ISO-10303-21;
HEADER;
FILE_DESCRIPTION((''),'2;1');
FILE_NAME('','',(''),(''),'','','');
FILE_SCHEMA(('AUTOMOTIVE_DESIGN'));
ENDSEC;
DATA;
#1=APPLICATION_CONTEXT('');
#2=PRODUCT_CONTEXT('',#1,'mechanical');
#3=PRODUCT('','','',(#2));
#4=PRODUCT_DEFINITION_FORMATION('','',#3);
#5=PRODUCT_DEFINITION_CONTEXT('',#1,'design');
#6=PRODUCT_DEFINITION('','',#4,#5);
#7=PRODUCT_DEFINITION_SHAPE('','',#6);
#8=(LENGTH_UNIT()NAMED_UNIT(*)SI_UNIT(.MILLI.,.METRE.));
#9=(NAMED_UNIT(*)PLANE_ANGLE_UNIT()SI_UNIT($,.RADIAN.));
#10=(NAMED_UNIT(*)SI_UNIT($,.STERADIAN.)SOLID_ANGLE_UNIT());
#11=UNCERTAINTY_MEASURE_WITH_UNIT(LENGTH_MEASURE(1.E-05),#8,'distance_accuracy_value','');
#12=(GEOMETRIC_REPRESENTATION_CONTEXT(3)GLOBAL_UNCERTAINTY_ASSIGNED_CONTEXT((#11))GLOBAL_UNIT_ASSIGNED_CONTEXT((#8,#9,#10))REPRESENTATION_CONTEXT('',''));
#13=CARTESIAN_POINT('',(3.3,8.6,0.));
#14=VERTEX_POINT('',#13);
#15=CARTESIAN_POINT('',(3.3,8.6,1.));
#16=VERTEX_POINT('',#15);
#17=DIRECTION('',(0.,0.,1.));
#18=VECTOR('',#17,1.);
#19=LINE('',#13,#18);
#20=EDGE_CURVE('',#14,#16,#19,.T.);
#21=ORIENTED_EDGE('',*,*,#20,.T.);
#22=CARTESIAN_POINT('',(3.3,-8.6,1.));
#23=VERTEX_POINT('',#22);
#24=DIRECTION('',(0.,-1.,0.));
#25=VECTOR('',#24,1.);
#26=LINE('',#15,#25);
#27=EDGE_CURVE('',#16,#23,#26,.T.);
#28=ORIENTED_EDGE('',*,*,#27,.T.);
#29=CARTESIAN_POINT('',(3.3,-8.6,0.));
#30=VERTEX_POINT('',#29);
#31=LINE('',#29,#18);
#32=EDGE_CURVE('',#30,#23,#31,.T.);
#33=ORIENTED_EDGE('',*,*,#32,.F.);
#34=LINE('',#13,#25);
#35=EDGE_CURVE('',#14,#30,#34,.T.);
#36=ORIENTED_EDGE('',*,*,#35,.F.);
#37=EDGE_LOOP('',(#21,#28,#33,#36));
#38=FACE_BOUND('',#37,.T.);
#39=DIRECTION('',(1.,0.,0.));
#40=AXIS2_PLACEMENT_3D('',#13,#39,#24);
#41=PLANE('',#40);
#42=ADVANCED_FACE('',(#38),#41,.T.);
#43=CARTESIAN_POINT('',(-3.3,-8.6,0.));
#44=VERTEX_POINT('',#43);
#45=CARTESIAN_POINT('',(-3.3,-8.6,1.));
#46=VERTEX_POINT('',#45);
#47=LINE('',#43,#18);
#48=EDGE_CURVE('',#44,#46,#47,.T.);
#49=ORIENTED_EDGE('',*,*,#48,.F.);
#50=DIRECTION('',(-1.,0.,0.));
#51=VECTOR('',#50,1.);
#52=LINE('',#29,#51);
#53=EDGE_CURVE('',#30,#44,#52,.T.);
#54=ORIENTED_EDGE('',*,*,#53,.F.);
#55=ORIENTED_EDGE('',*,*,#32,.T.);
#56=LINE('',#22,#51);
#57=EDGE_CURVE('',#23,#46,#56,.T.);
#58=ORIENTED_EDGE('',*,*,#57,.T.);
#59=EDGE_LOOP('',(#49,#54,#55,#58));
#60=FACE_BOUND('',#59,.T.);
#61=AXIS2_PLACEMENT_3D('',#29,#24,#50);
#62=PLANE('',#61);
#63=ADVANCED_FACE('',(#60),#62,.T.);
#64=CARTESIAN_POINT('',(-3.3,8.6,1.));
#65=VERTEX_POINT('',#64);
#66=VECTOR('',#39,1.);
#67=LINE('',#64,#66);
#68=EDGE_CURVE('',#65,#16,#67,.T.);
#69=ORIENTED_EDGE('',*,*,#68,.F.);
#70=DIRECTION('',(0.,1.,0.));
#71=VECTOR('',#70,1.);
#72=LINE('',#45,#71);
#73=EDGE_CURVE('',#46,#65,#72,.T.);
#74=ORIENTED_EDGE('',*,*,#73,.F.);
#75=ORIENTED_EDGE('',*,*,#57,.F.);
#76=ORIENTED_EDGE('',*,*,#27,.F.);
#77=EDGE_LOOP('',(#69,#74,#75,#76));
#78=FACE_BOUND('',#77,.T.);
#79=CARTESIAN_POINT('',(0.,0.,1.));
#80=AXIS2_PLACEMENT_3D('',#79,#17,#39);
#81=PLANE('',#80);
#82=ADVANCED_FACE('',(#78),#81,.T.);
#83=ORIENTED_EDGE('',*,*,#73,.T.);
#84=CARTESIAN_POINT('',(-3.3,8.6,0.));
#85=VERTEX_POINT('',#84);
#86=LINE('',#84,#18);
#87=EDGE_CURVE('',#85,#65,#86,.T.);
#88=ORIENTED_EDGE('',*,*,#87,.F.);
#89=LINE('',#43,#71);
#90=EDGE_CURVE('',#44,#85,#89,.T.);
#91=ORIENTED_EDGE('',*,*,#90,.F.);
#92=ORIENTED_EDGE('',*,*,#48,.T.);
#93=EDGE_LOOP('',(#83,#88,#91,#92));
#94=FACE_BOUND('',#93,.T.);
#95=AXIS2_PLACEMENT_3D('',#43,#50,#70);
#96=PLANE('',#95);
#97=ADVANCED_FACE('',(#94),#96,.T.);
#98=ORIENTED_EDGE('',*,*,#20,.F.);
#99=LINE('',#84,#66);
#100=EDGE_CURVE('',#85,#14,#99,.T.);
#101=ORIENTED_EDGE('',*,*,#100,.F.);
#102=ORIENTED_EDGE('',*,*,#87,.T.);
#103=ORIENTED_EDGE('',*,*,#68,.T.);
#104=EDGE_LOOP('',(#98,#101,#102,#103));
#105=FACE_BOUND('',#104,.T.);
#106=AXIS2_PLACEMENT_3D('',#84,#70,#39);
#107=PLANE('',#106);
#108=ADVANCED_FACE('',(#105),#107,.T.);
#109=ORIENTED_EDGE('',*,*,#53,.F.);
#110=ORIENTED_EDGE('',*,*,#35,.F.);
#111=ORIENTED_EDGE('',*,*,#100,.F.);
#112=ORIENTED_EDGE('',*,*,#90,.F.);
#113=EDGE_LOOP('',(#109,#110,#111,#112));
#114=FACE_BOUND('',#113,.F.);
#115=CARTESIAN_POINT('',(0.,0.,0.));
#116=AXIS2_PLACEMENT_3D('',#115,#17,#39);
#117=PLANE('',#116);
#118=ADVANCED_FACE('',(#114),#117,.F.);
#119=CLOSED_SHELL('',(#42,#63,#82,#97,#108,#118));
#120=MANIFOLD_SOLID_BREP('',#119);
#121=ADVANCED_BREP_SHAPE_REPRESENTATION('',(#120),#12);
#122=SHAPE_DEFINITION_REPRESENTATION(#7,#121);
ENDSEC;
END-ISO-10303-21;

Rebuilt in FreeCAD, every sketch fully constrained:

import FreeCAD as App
import Part
import Sketcher

V = App.Vector
Q = App.Units.Quantity


def add_polygon(sketch, points):
    """Adds a closed chain of lines whose ends are joined by coincident constraints."""
    first, n = sketch.GeometryCount, len(points)
    for a, b in zip(points, points[1:] + points[:1]):
        sketch.addGeometry(Part.LineSegment(App.Vector(*a, 0), App.Vector(*b, 0)), False)
    for i in range(n):
        sketch.addConstraint(Sketcher.Constraint("Coincident", first + i, 2, first + (i + 1) % n, 1))

doc = App.newDocument("Part")
body = doc.addObject("PartDesign::Body", "Body")

# Sketch on XY plane
sketch1 = body.newObject("Sketcher::SketchObject", "Sketch")
sketch1.AttachmentSupport = (doc.getObject("XY_Plane"), [""])
sketch1.MapMode = "FlatFace"
add_polygon(sketch1, [(-3, 9), (-3, -9), (3, -9), (3, 9)])  # lines 0-3
sketch1.addConstraint([
    Sketcher.Constraint("Vertical", 0),
    Sketcher.Constraint("Horizontal", 1),
    Sketcher.Constraint("Vertical", 2),
    Sketcher.Constraint("Horizontal", 3),
    Sketcher.Constraint("Symmetric", 0, 2, 2, 2, -1, 1),
    Sketcher.Constraint("DistanceX", 1, 1, 1, 2, Q("6.6 mm")),
    Sketcher.Constraint("DistanceY", 0, 2, 0, 1, Q("17.2 mm")),
])
pad1 = body.newObject("PartDesign::Pad", "Pad")
pad1.Profile = sketch1
pad1.Length = 1

doc.recompute()
